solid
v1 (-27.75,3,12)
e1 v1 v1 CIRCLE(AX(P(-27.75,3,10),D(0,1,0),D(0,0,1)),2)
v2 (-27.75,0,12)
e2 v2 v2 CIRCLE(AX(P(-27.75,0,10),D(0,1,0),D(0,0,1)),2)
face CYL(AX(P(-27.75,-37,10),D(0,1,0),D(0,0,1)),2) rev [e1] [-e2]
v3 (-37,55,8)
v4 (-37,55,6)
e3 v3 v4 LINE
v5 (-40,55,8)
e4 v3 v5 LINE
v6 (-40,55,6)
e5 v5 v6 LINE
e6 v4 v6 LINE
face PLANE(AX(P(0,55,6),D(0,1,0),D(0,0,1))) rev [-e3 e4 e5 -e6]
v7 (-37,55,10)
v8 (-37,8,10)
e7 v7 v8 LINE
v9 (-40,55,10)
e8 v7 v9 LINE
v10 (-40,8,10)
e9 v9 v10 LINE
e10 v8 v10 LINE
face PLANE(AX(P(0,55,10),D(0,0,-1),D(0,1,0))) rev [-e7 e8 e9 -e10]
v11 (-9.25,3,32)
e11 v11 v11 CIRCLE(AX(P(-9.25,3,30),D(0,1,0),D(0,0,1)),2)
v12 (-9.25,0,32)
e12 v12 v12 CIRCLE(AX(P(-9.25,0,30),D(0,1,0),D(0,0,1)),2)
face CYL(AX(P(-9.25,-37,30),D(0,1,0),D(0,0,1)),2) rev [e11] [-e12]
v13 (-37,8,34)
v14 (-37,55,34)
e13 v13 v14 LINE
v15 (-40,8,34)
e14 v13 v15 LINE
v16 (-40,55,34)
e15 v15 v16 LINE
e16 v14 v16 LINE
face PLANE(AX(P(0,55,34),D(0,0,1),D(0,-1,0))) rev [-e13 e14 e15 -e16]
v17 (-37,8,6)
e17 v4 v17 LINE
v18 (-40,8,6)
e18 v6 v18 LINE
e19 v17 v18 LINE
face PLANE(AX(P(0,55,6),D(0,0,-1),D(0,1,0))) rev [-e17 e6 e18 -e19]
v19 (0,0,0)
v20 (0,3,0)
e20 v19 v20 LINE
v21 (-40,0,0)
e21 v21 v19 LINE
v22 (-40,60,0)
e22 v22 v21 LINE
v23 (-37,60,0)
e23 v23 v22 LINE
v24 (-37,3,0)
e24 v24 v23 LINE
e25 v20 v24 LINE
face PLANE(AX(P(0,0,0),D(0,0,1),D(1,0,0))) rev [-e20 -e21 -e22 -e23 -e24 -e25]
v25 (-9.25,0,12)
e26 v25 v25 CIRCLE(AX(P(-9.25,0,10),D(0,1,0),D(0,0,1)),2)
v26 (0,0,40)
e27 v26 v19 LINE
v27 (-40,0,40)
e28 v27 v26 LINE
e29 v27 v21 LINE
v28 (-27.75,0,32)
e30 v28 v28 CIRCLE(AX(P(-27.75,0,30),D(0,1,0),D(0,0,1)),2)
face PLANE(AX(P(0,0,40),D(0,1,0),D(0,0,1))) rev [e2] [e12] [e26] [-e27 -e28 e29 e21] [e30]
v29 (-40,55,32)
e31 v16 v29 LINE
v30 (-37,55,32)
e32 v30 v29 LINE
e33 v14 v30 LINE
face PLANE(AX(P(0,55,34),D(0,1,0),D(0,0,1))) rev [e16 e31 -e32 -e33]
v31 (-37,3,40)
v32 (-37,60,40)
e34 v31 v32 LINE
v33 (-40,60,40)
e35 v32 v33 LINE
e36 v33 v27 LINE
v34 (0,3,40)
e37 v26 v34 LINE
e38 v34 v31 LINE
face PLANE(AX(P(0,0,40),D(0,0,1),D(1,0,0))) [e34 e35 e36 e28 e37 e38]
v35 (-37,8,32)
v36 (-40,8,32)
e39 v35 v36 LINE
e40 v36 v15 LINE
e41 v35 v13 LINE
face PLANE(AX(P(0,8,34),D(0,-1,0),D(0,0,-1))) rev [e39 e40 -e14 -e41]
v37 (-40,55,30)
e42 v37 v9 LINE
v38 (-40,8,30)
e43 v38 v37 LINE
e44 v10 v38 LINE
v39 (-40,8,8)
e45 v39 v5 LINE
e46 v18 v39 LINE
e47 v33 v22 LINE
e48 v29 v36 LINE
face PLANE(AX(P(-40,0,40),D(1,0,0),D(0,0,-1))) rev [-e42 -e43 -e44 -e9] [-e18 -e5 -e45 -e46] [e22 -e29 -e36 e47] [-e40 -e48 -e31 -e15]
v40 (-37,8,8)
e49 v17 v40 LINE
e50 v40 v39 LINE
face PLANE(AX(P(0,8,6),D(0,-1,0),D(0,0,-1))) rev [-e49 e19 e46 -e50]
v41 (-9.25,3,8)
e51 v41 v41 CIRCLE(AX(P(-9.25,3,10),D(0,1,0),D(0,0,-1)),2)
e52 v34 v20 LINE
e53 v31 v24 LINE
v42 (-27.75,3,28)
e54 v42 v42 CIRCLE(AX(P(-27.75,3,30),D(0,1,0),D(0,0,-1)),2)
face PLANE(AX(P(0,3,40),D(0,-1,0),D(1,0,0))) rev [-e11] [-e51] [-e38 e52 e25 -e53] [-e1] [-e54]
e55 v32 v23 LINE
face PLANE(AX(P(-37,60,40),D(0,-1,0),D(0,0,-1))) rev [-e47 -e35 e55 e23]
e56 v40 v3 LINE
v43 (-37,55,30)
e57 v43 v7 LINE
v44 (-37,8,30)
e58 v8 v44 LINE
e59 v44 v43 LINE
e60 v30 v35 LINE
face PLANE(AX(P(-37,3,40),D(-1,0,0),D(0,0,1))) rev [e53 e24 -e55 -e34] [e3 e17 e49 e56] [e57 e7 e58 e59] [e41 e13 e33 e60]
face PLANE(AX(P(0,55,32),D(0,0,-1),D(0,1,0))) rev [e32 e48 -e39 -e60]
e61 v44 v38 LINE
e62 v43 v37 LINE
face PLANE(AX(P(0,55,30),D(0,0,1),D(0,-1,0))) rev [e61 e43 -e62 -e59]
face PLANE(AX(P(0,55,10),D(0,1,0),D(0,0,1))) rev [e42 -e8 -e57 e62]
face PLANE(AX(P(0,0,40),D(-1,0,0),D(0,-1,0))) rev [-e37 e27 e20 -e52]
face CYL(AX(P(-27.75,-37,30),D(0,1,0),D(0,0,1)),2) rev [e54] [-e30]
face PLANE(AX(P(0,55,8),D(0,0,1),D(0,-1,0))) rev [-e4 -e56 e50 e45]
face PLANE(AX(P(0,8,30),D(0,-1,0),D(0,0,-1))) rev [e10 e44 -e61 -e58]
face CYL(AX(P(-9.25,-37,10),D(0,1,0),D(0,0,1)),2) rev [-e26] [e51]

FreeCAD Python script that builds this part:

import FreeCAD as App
import Part
import Sketcher

doc = App.newDocument("Part")
params = doc.addObject("Spreadsheet::Sheet", "Params")
for row, (alias, value) in enumerate([
    ("sketch1_width", "40 mm"),
    ("sketch1_width2", "37 mm"),
    ("sketch1_height", "57 mm"),
    ("pad1_length", "40 mm"),
    ("sketch2_diameter", "4 mm"),
    ("pocket1_length", "40 mm"),
    ("sketch3_width", "47 mm"),
    ("sketch3_height", "2 mm"),
    ("sketch3_height2", "20 mm"),
], start=1):
    params.set(f"A{row}", alias)
    params.set(f"B{row}", "=" + value)
    params.setAlias(f"B{row}", alias)

body = doc.addObject("PartDesign::Body", "Body")

# Sketch on XY plane
sketch1 = body.newObject("Sketcher::SketchObject", "Sketch")
sketch1.AttachmentSupport = (doc.getObject("XY_Plane"), [""])
sketch1.MapMode = "FlatFace"
sketch1.addGeometry([
    Part.LineSegment(App.Vector(-40, 0, 0), App.Vector(0, 0, 0)),  # 0
    Part.LineSegment(App.Vector(0, 0, 0), App.Vector(0, 3, 0)),  # 1
    Part.LineSegment(App.Vector(0, 3, 0), App.Vector(-37, 3, 0)),  # 2
    Part.LineSegment(App.Vector(-37, 3, 0), App.Vector(-37, 60, 0)),  # 3
    Part.LineSegment(App.Vector(-37, 60, 0), App.Vector(-40, 60, 0)),  # 4
    Part.LineSegment(App.Vector(-40, 60, 0), App.Vector(-40, 0, 0)),  # 5
], False)
sketch1.addConstraint([
    Sketcher.Constraint("Coincident", 0, 2, 1, 1),
    Sketcher.Constraint("Coincident", 1, 2, 2, 1),
    Sketcher.Constraint("Coincident", 2, 2, 3, 1),
    Sketcher.Constraint("Coincident", 3, 2, 4, 1),
    Sketcher.Constraint("Coincident", 4, 2, 5, 1),
    Sketcher.Constraint("Coincident", 5, 2, 0, 1),
    Sketcher.Constraint("Horizontal", 0),
    Sketcher.Constraint("Vertical", 1),
    Sketcher.Constraint("Horizontal", 2),
    Sketcher.Constraint("Vertical", 3),
    Sketcher.Constraint("Horizontal", 4),
    Sketcher.Constraint("Vertical", 5),
    Sketcher.Constraint("Coincident", 0, 2, -1, 1),
    Sketcher.Constraint("Equal", 4, 1),
    Sketcher.Constraint("DistanceX", 0, 1, 0, 2, 40.0),
    Sketcher.Constraint("DistanceX", 2, 2, 2, 1, 37.0),
    Sketcher.Constraint("DistanceY", 3, 1, 3, 2, 57.0),
])
sketch1.setExpression("Constraints[14]", "Params.sketch1_width")
sketch1.setExpression("Constraints[15]", "Params.sketch1_width2")
sketch1.setExpression("Constraints[16]", "Params.sketch1_height")
pad1 = body.newObject("PartDesign::Pad", "Pad")
pad1.Profile = sketch1
pad1.setExpression("Length", "Params.pad1_length")

# Sketch on XZ plane
sketch2 = body.newObject("Sketcher::SketchObject", "Sketch001")
sketch2.AttachmentSupport = (doc.getObject("XZ_Plane"), [""])
sketch2.MapMode = "FlatFace"
sketch2.AttachmentOffset = App.Placement(App.Vector(0, 0, -3), App.Rotation())
sketch2.addGeometry([
    Part.Circle(App.Vector(-9.25, 30, 0), App.Vector(0, 0, 1), 2),
    Part.Circle(App.Vector(-27.75, 30, 0), App.Vector(0, 0, 1), 2),
    Part.Circle(App.Vector(-27.75, 10, 0), App.Vector(0, 0, 1), 2),
    Part.Circle(App.Vector(-9.25, 10, 0), App.Vector(0, 0, 1), 2),
], False)
sketch2.addConstraint([
    Sketcher.Constraint("Equal", 0, 1),
    Sketcher.Constraint("Equal", 1, 2),
    Sketcher.Constraint("Equal", 2, 3),
    Sketcher.Constraint("Horizontal", 0, 3, 1, 3),
    Sketcher.Constraint("Horizontal", 2, 3, 3, 3),
    Sketcher.Constraint("Vertical", 1, 3, 2, 3),
    Sketcher.Constraint("Vertical", 0, 3, 3, 3),
    Sketcher.Constraint("Diameter", 0, 4.0),
    Sketcher.Constraint("DistanceY", -1, 1, 0, 3, 30.0),
    Sketcher.Constraint("DistanceY", -1, 1, 2, 3, 10.0),
    Sketcher.Constraint("DistanceX", 1, 3, 0, 3, 18.5),
    Sketcher.Constraint("DistanceX", 0, 3, -1, 1, 9.25),
])
sketch2.setExpression("Constraints[7]", "Params.sketch2_diameter")
pocket1 = body.newObject("PartDesign::Pocket", "Pocket")
pocket1.Profile = sketch2
pocket1.setExpression("Length", "Params.pocket1_length")
pocket1.Reversed = True

# Sketch on YZ plane
sketch3 = body.newObject("Sketcher::SketchObject", "Sketch002")
sketch3.AttachmentSupport = (doc.getObject("YZ_Plane"), [""])
sketch3.MapMode = "FlatFace"
sketch3.AttachmentOffset = App.Placement(App.Vector(0, 0, -40), App.Rotation())
sketch3.addGeometry([
    Part.LineSegment(App.Vector(55, 32, 0), App.Vector(8, 32, 0)),  # 0
    Part.LineSegment(App.Vector(8, 32, 0), App.Vector(8, 34, 0)),  # 1
    Part.LineSegment(App.Vector(8, 34, 0), App.Vector(55, 34, 0)),  # 2
    Part.LineSegment(App.Vector(55, 34, 0), App.Vector(55, 32, 0)),  # 3
    Part.LineSegment(App.Vector(55, 6, 0), App.Vector(8, 6, 0)),  # 4
    Part.LineSegment(App.Vector(8, 6, 0), App.Vector(8, 8, 0)),  # 5
    Part.LineSegment(App.Vector(8, 8, 0), App.Vector(55, 8, 0)),  # 6
    Part.LineSegment(App.Vector(55, 8, 0), App.Vector(55, 6, 0)),  # 7
    Part.LineSegment(App.Vector(55, 10, 0), App.Vector(8, 10, 0)),  # 8
    Part.LineSegment(App.Vector(8, 10, 0), App.Vector(8, 30, 0)),  # 9
    Part.LineSegment(App.Vector(8, 30, 0), App.Vector(55, 30, 0)),  # 10
    Part.LineSegment(App.Vector(55, 30, 0), App.Vector(55, 10, 0)),  # 11
], False)
sketch3.addConstraint([
    Sketcher.Constraint("Coincident", 0, 2, 1, 1),
    Sketcher.Constraint("Coincident", 1, 2, 2, 1),
    Sketcher.Constraint("Coincident", 2, 2, 3, 1),
    Sketcher.Constraint("Coincident", 3, 2, 0, 1),
    Sketcher.Constraint("Coincident", 4, 2, 5, 1),
    Sketcher.Constraint("Coincident", 5, 2, 6, 1),
    Sketcher.Constraint("Coincident", 6, 2, 7, 1),
    Sketcher.Constraint("Coincident", 7, 2, 4, 1),
    Sketcher.Constraint("Coincident", 8, 2, 9, 1),
    Sketcher.Constraint("Coincident", 9, 2, 10, 1),
    Sketcher.Constraint("Coincident", 10, 2, 11, 1),
    Sketcher.Constraint("Coincident", 11, 2, 8, 1),
    Sketcher.Constraint("Horizontal", 0),
    Sketcher.Constraint("Vertical", 1),
    Sketcher.Constraint("Horizontal", 2),
    Sketcher.Constraint("Vertical", 3),
    Sketcher.Constraint("Horizontal", 4),
    Sketcher.Constraint("Vertical", 5),
    Sketcher.Constraint("Horizontal", 6),
    Sketcher.Constraint("Vertical", 7),
    Sketcher.Constraint("Horizontal", 8),
    Sketcher.Constraint("Vertical", 9),
    Sketcher.Constraint("Horizontal", 10),
    Sketcher.Constraint("Vertical", 11),
    Sketcher.Constraint("Vertical", 1, 2, 4, 2),
    Sketcher.Constraint("Vertical", 3, 2, 6, 2),
    Sketcher.Constraint("Vertical", 5, 2, 8, 2),
    Sketcher.Constraint("Vertical", 7, 2, 10, 2),
    Sketcher.Constraint("Equal", 3, 5),
    Sketcher.Constraint("DistanceX", 0, 2, 0, 1, 47.0),
    Sketcher.Constraint("DistanceY", 1, 1, 1, 2, 2.0),
    Sketcher.Constraint("DistanceY", 9, 1, 9, 2, 20.0),
    Sketcher.Constraint("DistanceX", -1, 1, 0, 2, 8.0),
    Sketcher.Constraint("DistanceY", -1, 1, 0, 2, 32.0),
    Sketcher.Constraint("DistanceY", -1, 1, 4, 2, 6.0),
    Sketcher.Constraint("DistanceY", -1, 1, 8, 2, 10.0),
])
sketch3.setExpression("Constraints[29]", "Params.sketch3_width")
sketch3.setExpression("Constraints[30]", "Params.sketch3_height")
sketch3.setExpression("Constraints[31]", "Params.sketch3_height2")
pocket2 = body.newObject("PartDesign::Pocket", "Pocket001")
pocket2.Profile = sketch3
pocket2.Type = "ThroughAll"
pocket2.Reversed = True

doc.recompute()
